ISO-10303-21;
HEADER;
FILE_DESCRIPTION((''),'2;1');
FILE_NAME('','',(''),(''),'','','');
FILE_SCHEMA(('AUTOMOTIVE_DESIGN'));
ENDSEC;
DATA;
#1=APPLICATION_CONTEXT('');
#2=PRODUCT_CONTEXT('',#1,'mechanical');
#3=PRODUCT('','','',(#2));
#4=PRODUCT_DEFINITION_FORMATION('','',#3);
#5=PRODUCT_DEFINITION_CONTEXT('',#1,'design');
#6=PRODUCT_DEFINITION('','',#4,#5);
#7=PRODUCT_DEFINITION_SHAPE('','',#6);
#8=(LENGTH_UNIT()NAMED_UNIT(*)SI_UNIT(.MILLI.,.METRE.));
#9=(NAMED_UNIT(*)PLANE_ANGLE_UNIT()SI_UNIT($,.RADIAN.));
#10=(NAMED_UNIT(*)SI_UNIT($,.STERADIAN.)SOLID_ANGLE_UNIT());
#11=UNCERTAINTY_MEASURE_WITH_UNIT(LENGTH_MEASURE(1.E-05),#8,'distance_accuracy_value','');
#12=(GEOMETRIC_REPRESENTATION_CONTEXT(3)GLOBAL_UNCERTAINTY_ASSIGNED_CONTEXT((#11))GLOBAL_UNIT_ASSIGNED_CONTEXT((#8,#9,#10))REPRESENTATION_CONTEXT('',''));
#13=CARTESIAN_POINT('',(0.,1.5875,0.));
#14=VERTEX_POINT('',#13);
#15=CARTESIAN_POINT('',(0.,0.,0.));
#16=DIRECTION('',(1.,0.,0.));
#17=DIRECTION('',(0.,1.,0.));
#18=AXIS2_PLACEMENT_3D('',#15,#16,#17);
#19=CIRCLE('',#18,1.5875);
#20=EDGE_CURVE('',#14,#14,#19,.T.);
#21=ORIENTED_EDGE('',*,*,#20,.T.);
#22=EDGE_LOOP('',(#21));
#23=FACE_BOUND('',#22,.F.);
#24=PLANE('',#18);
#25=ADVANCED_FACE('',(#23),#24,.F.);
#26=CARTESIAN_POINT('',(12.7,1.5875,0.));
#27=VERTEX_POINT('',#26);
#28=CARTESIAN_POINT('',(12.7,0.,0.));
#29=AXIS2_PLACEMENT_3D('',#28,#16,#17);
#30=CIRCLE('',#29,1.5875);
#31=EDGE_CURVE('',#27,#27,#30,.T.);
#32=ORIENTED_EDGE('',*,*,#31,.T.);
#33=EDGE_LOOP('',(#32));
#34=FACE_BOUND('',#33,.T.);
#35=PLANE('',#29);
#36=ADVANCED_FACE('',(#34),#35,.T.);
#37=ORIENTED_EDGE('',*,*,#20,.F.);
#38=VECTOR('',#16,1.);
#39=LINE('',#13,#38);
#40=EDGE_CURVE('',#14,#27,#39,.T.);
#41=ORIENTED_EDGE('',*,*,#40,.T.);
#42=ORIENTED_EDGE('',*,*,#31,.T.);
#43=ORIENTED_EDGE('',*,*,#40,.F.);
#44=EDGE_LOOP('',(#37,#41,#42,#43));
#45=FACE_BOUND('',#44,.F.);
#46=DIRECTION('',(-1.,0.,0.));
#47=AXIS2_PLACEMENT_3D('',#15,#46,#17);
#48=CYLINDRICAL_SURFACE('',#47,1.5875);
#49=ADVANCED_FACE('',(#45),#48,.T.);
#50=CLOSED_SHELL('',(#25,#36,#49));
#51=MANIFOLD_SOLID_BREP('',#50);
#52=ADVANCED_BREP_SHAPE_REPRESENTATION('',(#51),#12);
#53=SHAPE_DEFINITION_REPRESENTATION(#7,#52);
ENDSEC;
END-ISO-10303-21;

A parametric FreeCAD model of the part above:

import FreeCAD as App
import Part
import Sketcher
from FreeCAD import Vector
Q = App.Units.Quantity

doc = App.newDocument("Part")
body = doc.addObject("PartDesign::Body", "Body")

# Sketch on YZ plane
sketch1 = body.newObject("Sketcher::SketchObject", "Sketch")
sketch1.AttachmentSupport = (doc.getObject("YZ_Plane"), [""])
sketch1.MapMode = "FlatFace"
sketch1.addGeometry(Part.Circle(Vector(0, 0, 0), Vector(0, 0, 1), 1.5875), False)
sketch1.addConstraint([
    Sketcher.Constraint("Coincident", 0, 3, -1, 1),
    Sketcher.Constraint("Diameter", 0, Q("0.125 in")),
])
pad1 = body.newObject("PartDesign::Pad", "Pad")
pad1.Profile = sketch1
pad1.Length = Q("0.5 in")

doc.recompute()
